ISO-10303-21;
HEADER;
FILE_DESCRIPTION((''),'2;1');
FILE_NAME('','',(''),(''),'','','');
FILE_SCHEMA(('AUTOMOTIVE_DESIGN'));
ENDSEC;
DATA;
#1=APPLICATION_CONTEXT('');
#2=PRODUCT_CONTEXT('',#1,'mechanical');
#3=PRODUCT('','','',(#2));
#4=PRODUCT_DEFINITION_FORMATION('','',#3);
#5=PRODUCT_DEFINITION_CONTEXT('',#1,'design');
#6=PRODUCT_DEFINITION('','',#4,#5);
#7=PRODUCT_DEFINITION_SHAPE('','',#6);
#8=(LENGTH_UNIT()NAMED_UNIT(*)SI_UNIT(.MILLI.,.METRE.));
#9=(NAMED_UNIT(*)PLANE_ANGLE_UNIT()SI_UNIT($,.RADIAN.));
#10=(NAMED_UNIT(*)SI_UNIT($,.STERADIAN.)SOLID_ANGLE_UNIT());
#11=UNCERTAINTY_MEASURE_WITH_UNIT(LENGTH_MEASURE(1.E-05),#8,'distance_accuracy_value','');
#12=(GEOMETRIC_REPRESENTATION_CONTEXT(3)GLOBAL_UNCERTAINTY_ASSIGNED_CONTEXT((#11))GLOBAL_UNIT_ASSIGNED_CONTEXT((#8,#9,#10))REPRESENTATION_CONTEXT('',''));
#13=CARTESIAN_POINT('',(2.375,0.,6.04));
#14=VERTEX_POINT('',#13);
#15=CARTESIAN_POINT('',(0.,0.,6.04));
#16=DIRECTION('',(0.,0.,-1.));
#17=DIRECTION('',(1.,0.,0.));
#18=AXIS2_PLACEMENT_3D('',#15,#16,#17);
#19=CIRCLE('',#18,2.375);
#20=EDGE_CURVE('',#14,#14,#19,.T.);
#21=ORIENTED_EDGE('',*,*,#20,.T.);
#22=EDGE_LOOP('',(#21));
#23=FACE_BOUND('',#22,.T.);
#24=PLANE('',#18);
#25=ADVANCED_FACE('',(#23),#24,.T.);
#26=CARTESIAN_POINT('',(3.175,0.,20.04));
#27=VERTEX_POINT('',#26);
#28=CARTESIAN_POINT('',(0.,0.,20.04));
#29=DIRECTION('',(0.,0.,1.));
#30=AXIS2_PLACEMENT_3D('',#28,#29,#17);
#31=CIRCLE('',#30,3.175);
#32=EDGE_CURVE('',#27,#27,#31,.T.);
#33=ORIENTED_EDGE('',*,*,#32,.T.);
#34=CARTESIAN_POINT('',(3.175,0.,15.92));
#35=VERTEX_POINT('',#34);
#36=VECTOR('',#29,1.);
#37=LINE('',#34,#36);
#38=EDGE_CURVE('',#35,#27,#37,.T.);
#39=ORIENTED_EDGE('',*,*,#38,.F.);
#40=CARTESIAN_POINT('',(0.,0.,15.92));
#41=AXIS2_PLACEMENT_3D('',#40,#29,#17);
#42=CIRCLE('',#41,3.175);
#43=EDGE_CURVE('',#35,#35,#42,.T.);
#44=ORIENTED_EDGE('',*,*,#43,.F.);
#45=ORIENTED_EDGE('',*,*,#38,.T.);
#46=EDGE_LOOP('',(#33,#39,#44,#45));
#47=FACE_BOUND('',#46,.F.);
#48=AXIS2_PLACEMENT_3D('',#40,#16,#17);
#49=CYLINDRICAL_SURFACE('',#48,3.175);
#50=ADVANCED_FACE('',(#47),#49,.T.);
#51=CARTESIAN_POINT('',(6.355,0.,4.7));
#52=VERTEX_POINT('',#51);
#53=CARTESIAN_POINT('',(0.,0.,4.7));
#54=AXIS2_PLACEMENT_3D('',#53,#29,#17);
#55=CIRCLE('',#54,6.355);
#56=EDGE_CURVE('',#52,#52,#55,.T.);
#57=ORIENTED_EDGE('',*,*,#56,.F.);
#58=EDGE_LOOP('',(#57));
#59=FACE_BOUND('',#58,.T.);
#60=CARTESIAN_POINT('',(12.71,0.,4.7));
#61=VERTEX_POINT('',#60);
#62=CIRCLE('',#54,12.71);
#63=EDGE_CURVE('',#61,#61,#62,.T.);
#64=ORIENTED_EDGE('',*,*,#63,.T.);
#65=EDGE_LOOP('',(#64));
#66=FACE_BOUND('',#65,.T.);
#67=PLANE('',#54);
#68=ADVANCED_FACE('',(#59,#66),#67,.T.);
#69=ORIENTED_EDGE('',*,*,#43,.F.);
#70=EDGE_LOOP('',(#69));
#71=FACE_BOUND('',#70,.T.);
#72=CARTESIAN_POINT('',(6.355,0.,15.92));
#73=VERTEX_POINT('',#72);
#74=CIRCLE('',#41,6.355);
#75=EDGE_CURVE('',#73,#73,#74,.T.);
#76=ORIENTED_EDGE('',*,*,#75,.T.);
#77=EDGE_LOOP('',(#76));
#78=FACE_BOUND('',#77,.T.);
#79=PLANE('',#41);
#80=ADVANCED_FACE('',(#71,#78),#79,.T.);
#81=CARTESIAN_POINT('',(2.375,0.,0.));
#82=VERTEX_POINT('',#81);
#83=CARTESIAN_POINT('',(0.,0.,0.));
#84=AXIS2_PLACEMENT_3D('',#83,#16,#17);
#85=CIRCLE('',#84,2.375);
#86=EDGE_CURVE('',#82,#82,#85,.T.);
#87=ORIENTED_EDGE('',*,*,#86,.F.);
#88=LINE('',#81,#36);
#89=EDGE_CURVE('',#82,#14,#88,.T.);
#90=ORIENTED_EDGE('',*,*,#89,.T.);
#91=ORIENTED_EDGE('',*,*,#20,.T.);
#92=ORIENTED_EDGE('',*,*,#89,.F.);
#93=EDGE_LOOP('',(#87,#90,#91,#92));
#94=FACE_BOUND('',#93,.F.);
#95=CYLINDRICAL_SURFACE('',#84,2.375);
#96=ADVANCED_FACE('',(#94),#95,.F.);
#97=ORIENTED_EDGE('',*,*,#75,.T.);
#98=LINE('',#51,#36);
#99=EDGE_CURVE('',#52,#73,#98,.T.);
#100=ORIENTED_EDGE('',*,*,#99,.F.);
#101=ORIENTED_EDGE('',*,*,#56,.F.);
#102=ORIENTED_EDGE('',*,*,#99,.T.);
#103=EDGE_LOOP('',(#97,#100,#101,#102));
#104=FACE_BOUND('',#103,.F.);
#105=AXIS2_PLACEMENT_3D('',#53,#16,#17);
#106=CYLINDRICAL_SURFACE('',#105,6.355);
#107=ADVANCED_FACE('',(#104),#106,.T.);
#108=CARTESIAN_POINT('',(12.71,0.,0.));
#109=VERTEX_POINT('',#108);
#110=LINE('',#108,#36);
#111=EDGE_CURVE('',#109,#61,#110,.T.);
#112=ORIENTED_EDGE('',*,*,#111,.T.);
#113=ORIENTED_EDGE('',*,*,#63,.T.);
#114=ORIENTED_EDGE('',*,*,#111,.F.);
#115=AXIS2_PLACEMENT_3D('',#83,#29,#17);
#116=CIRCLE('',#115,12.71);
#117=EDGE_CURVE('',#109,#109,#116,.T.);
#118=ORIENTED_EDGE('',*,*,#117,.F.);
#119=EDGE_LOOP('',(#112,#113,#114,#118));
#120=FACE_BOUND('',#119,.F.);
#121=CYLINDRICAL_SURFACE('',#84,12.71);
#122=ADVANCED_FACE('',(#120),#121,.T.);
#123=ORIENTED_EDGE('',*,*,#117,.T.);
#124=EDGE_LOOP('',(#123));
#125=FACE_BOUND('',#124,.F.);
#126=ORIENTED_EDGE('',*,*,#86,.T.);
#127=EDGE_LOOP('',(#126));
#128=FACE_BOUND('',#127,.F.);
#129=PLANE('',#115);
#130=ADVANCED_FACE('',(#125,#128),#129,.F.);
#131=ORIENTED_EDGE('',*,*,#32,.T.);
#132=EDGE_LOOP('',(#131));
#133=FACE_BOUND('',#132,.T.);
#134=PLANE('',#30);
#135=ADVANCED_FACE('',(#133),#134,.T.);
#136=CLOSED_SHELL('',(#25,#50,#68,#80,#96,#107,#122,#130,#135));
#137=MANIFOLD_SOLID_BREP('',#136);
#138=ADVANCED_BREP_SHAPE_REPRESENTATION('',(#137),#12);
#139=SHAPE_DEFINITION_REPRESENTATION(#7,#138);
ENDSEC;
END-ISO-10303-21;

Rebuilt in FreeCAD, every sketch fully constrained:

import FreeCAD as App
import Part
import Sketcher

V = App.Vector
Q = App.Units.Quantity

doc = App.newDocument("Part")
body = doc.addObject("PartDesign::Body", "Body")

# Sketch on XY plane
sketch1 = doc.addObject("Sketcher::SketchObject", "Sketch")
body.addObject(sketch1)
sketch1.AttachmentSupport = (doc.XY_Plane, [""])
sketch1.MapMode = "FlatFace"
sketch1.addGeometry(Part.Circle(V(0, 0, 0), V(0, 0, 1), 13), False)
sketch1.addConstraint([
    Sketcher.Constraint("Coincident", 0, 3, -1, 1),
    Sketcher.Constraint("Diameter", 0, Q("25.42 mm")),
])
pad1 = doc.addObject("PartDesign::Pad", "Pad")
body.addObject(pad1)
pad1.Profile = sketch1
pad1.Length = 4.7

# Sketch on XY plane
sketch2 = doc.addObject("Sketcher::SketchObject", "Sketch001")
body.addObject(sketch2)
sketch2.AttachmentSupport = (doc.XY_Plane, [""])
sketch2.MapMode = "FlatFace"
sketch2.AttachmentOffset = App.Placement(V(0, 0, 4.7), App.Rotation())
sketch2.addGeometry(Part.Circle(V(0, 0, 0), V(0, 0, 1), 6), False)
sketch2.addConstraint([
    Sketcher.Constraint("Coincident", 0, 3, -1, 1),
    Sketcher.Constraint("Diameter", 0, Q("12.71 mm")),
])
pad2 = doc.addObject("PartDesign::Pad", "Pad001")
body.addObject(pad2)
pad2.Profile = sketch2
pad2.Length = 11.22

# Sketch on XY plane
sketch3 = doc.addObject("Sketcher::SketchObject", "Sketch002")
body.addObject(sketch3)
sketch3.AttachmentSupport = (doc.XY_Plane, [""])
sketch3.MapMode = "FlatFace"
sketch3.AttachmentOffset = App.Placement(V(0, 0, 15.92), App.Rotation())
sketch3.addGeometry(Part.Circle(V(0, 0, 0), V(0, 0, 1), 3.2), False)
sketch3.addConstraint([
    Sketcher.Constraint("Coincident", 0, 3, -1, 1),
    Sketcher.Constraint("Diameter", 0, Q("6.35 mm")),
])
pad3 = doc.addObject("PartDesign::Pad", "Pad002")
body.addObject(pad3)
pad3.Profile = sketch3
pad3.Length = 4.12

# Sketch on XY plane
sketch4 = doc.addObject("Sketcher::SketchObject", "Sketch003")
body.addObject(sketch4)
sketch4.AttachmentSupport = (doc.XY_Plane, [""])
sketch4.MapMode = "FlatFace"
sketch4.addGeometry(Part.Circle(V(0, 0, 0), V(0, 0, 1), 2.4), False)
sketch4.addConstraint([
    Sketcher.Constraint("Coincident", 0, 3, -1, 1),
    Sketcher.Constraint("Diameter", 0, Q("4.75 mm")),
])
pocket1 = doc.addObject("PartDesign::Pocket", "Pocket")
body.addObject(pocket1)
pocket1.Profile = sketch4
pocket1.Length = 6.04
pocket1.Reversed = True

doc.recompute()
